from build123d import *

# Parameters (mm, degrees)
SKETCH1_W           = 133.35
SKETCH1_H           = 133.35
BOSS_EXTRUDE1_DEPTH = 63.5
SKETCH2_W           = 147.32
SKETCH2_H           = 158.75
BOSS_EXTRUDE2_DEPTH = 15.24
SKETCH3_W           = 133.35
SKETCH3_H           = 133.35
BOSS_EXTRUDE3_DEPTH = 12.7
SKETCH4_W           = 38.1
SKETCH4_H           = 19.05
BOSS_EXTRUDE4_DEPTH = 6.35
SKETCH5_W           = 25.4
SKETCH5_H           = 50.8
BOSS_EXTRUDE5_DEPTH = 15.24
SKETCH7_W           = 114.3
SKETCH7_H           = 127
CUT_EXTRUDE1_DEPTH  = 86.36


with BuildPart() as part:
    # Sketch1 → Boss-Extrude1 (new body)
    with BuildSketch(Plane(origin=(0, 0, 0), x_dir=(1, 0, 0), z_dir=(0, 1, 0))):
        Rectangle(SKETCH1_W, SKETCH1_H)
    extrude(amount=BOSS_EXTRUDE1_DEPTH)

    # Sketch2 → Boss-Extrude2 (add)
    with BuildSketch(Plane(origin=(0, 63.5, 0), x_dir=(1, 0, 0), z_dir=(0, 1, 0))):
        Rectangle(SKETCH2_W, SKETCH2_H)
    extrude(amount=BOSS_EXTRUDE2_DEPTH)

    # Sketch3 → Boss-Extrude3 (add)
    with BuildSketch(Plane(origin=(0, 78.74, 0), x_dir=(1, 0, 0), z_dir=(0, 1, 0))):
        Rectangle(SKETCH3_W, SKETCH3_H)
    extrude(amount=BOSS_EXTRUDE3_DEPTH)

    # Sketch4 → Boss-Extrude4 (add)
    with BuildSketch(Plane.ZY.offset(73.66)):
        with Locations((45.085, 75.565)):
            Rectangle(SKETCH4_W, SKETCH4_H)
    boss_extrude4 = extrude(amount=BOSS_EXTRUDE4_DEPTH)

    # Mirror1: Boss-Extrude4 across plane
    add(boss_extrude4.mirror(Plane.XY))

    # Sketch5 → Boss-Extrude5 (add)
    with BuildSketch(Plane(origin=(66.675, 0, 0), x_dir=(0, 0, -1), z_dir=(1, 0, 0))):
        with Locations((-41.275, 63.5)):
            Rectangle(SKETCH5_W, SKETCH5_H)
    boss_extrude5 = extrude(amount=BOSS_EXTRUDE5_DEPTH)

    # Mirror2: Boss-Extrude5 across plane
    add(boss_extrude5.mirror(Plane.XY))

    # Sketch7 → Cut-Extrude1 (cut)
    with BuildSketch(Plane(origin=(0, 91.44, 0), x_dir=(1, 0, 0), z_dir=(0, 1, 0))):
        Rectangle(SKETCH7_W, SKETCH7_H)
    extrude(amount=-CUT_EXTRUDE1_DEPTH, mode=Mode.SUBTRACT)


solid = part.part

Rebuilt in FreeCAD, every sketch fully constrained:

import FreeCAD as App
import Part
import Sketcher
Q = App.Units.Quantity


def add_polygon(sketch, points):
    """Adds a closed chain of lines whose ends are joined by coincident constraints."""
    first, n = sketch.GeometryCount, len(points)
    for a, b in zip(points, points[1:] + points[:1]):
        sketch.addGeometry(Part.LineSegment(App.Vector(*a, 0), App.Vector(*b, 0)), False)
    for i in range(n):
        sketch.addConstraint(Sketcher.Constraint("Coincident", first + i, 2, first + (i + 1) % n, 1))

doc = App.newDocument("Part")
params = doc.addObject("Spreadsheet::Sheet", "Params")
for row, (alias, value) in enumerate([
    ("sketch1_width", "5.25 in"),
    ("pad1_length", "2.5 in"),
    ("sketch2_width", "5.8 in"),
    ("sketch2_height", "6.25 in"),
    ("pad2_length", "0.6 in"),
    ("sketch3_width", "5.25 in"),
    ("pad3_length", "0.5 in"),
    ("sketch4_height", "1.5 in"),
    ("sketch4_width", "0.75 in"),
    ("pad4_length", "0.25 in"),
    ("sketch5_width", "2 in"),
    ("sketch5_height", "1 in"),
    ("pad5_length", "0.6 in"),
    ("sketch6_height", "5 in"),
    ("sketch6_width", "4.5 in"),
    ("pocket1_length", "3.4 in"),
], start=1):
    params.set(f"A{row}", alias)
    params.set(f"B{row}", "=" + value)
    params.setAlias(f"B{row}", alias)

body = doc.addObject("PartDesign::Body", "Body")

sketch1 = body.newObject("Sketcher::SketchObject", "Sketch")
sketch1.AttachmentSupport = (doc.getObject("XZ_Plane"), [""])
sketch1.MapMode = "FlatFace"
add_polygon(sketch1, [(-67, -67), (-67, 67), (67, 67), (67, -67)])
sketch1.addConstraint([
    Sketcher.Constraint("Vertical", 0),
    Sketcher.Constraint("Horizontal", 1),
    Sketcher.Constraint("Vertical", 2),
    Sketcher.Constraint("Horizontal", 3),
    Sketcher.Constraint("Symmetric", 0, 2, 2, 2, -1, 1),
    Sketcher.Constraint("Equal", 3, 0),
    Sketcher.Constraint("DistanceX", 1, 1, 1, 2, Q("5.25 in")),
])
sketch1.setExpression("Constraints[10]", "Params.sketch1_width")
pad1 = body.newObject("PartDesign::Pad", "Pad")
pad1.Profile = sketch1
pad1.setExpression("Length", "Params.pad1_length")
pad1.Reversed = True

sketch2 = body.newObject("Sketcher::SketchObject", "Sketch001")
sketch2.AttachmentSupport = (doc.getObject("XZ_Plane"), [""])
sketch2.MapMode = "FlatFace"
sketch2.AttachmentOffset = App.Placement(App.Vector(0, 0, -2.5 * 25.4), App.Rotation())
add_polygon(sketch2, [(-74, -79), (-74, 79), (74, 79), (74, -79)])
sketch2.addConstraint([
    Sketcher.Constraint("Vertical", 0),
    Sketcher.Constraint("Horizontal", 1),
    Sketcher.Constraint("Vertical", 2),
    Sketcher.Constraint("Horizontal", 3),
    Sketcher.Constraint("Symmetric", 0, 2, 2, 2, -1, 1),
    Sketcher.Constraint("DistanceX", 1, 1, 1, 2, Q("5.8 in")),
    Sketcher.Constraint("DistanceY", 0, 1, 0, 2, Q("6.25 in")),
])
sketch2.setExpression("Constraints[9]", "Params.sketch2_width")
sketch2.setExpression("Constraints[10]", "Params.sketch2_height")
pad2 = body.newObject("PartDesign::Pad", "Pad001")
pad2.Profile = sketch2
pad2.setExpression("Length", "Params.pad2_length")
pad2.Reversed = True

sketch3 = body.newObject("Sketcher::SketchObject", "Sketch002")
sketch3.AttachmentSupport = (doc.getObject("XZ_Plane"), [""])
sketch3.MapMode = "FlatFace"
sketch3.AttachmentOffset = App.Placement(App.Vector(0, 0, -3.1 * 25.4), App.Rotation())
add_polygon(sketch3, [(-67, -67), (-67, 67), (67, 67), (67, -67)])
sketch3.addConstraint([
    Sketcher.Constraint("Vertical", 0),
    Sketcher.Constraint("Horizontal", 1),
    Sketcher.Constraint("Vertical", 2),
    Sketcher.Constraint("Horizontal", 3),
    Sketcher.Constraint("Symmetric", 0, 2, 2, 2, -1, 1),
    Sketcher.Constraint("Equal", 3, 0),
    Sketcher.Constraint("DistanceX", 1, 1, 1, 2, Q("5.25 in")),
])
sketch3.setExpression("Constraints[10]", "Params.sketch3_width")
pad3 = body.newObject("PartDesign::Pad", "Pad002")
pad3.Profile = sketch3
pad3.setExpression("Length", "Params.pad3_length")
pad3.Reversed = True

sketch4 = body.newObject("Sketcher::SketchObject", "Sketch003")
sketch4.AttachmentSupport = (doc.getObject("YZ_Plane"), [""])
sketch4.MapMode = "FlatFace"
sketch4.AttachmentOffset = App.Placement(App.Vector(0, 0, -2.9 * 25.4), App.Rotation())
add_polygon(sketch4, [(85, 26), (66, 26), (66, 64), (85, 64)])
sketch4.addConstraint([
    Sketcher.Constraint("Horizontal", 0),
    Sketcher.Constraint("Vertical", 1),
    Sketcher.Constraint("Horizontal", 2),
    Sketcher.Constraint("Vertical", 3),
    Sketcher.Constraint("DistanceY", 1, 1, 1, 2, Q("1.5 in")),
    Sketcher.Constraint("DistanceX", 0, 2, 0, 1, Q("0.75 in")),
    Sketcher.Constraint("DistanceX", -1, 1, 0, 2, Q("2.6 in")),
    Sketcher.Constraint("DistanceY", -1, 1, 0, 2, Q("1.025 in")),
])
sketch4.setExpression("Constraints[8]", "Params.sketch4_height")
sketch4.setExpression("Constraints[9]", "Params.sketch4_width")
pad4 = body.newObject("PartDesign::Pad", "Pad003")
pad4.Profile = sketch4
pad4.setExpression("Length", "Params.pad4_length")
pad4.Reversed = True
doc.recompute()

mirrored = body.newObject("PartDesign::Mirrored", "Mirrored")
mirrored.Originals = [pad4]
mirrored.MirrorPlane = (doc.getObject("XY_Plane"), [""])
body.Tip = mirrored

sketch5 = body.newObject("Sketcher::SketchObject", "Sketch004")
sketch5.AttachmentSupport = (doc.getObject("YZ_Plane"), [""])
sketch5.MapMode = "FlatFace"
sketch5.AttachmentOffset = App.Placement(App.Vector(0, 0, 2.625 * 25.4), App.Rotation())
add_polygon(sketch5, [(89, 54), (38, 54), (38, 29), (89, 29)])
sketch5.addConstraint([
    Sketcher.Constraint("Horizontal", 0),
    Sketcher.Constraint("Vertical", 1),
    Sketcher.Constraint("Horizontal", 2),
    Sketcher.Constraint("Vertical", 3),
    Sketcher.Constraint("DistanceX", 0, 2, 0, 1, Q("2 in")),
    Sketcher.Constraint("DistanceY", 1, 2, 1, 1, Q("1 in")),
    Sketcher.Constraint("DistanceX", -1, 1, 0, 2, Q("1.5 in")),
    Sketcher.Constraint("DistanceY", -1, 1, 0, 2, Q("2.125 in")),
])
sketch5.setExpression("Constraints[8]", "Params.sketch5_width")
sketch5.setExpression("Constraints[9]", "Params.sketch5_height")
pad5 = body.newObject("PartDesign::Pad", "Pad004")
pad5.Profile = sketch5
pad5.setExpression("Length", "Params.pad5_length")
doc.recompute()

mirrored2 = body.newObject("PartDesign::Mirrored", "Mirrored001")
mirrored2.Originals = [pad5]
mirrored2.MirrorPlane = (doc.getObject("XY_Plane"), [""])
body.Tip = mirrored2

sketch6 = body.newObject("Sketcher::SketchObject", "Sketch005")
sketch6.AttachmentSupport = (doc.getObject("XZ_Plane"), [""])
sketch6.MapMode = "FlatFace"
sketch6.AttachmentOffset = App.Placement(App.Vector(0, 0, -3.6 * 25.4), App.Rotation())
add_polygon(sketch6, [(-57, -64), (-57, 64), (57, 64), (57, -64)])
sketch6.addConstraint([
    Sketcher.Constraint("Vertical", 0),
    Sketcher.Constraint("Horizontal", 1),
    Sketcher.Constraint("Vertical", 2),
    Sketcher.Constraint("Horizontal", 3),
    Sketcher.Constraint("Symmetric", 0, 2, 2, 2, -1, 1),
    Sketcher.Constraint("DistanceY", 0, 1, 0, 2, Q("5 in")),
    Sketcher.Constraint("DistanceX", 1, 1, 1, 2, Q("4.5 in")),
])
sketch6.setExpression("Constraints[9]", "Params.sketch6_height")
sketch6.setExpression("Constraints[10]", "Params.sketch6_width")
pocket1 = body.newObject("PartDesign::Pocket", "Pocket")
pocket1.Profile = sketch6
pocket1.setExpression("Length", "Params.pocket1_length")
pocket1.Reversed = True

doc.recompute()
